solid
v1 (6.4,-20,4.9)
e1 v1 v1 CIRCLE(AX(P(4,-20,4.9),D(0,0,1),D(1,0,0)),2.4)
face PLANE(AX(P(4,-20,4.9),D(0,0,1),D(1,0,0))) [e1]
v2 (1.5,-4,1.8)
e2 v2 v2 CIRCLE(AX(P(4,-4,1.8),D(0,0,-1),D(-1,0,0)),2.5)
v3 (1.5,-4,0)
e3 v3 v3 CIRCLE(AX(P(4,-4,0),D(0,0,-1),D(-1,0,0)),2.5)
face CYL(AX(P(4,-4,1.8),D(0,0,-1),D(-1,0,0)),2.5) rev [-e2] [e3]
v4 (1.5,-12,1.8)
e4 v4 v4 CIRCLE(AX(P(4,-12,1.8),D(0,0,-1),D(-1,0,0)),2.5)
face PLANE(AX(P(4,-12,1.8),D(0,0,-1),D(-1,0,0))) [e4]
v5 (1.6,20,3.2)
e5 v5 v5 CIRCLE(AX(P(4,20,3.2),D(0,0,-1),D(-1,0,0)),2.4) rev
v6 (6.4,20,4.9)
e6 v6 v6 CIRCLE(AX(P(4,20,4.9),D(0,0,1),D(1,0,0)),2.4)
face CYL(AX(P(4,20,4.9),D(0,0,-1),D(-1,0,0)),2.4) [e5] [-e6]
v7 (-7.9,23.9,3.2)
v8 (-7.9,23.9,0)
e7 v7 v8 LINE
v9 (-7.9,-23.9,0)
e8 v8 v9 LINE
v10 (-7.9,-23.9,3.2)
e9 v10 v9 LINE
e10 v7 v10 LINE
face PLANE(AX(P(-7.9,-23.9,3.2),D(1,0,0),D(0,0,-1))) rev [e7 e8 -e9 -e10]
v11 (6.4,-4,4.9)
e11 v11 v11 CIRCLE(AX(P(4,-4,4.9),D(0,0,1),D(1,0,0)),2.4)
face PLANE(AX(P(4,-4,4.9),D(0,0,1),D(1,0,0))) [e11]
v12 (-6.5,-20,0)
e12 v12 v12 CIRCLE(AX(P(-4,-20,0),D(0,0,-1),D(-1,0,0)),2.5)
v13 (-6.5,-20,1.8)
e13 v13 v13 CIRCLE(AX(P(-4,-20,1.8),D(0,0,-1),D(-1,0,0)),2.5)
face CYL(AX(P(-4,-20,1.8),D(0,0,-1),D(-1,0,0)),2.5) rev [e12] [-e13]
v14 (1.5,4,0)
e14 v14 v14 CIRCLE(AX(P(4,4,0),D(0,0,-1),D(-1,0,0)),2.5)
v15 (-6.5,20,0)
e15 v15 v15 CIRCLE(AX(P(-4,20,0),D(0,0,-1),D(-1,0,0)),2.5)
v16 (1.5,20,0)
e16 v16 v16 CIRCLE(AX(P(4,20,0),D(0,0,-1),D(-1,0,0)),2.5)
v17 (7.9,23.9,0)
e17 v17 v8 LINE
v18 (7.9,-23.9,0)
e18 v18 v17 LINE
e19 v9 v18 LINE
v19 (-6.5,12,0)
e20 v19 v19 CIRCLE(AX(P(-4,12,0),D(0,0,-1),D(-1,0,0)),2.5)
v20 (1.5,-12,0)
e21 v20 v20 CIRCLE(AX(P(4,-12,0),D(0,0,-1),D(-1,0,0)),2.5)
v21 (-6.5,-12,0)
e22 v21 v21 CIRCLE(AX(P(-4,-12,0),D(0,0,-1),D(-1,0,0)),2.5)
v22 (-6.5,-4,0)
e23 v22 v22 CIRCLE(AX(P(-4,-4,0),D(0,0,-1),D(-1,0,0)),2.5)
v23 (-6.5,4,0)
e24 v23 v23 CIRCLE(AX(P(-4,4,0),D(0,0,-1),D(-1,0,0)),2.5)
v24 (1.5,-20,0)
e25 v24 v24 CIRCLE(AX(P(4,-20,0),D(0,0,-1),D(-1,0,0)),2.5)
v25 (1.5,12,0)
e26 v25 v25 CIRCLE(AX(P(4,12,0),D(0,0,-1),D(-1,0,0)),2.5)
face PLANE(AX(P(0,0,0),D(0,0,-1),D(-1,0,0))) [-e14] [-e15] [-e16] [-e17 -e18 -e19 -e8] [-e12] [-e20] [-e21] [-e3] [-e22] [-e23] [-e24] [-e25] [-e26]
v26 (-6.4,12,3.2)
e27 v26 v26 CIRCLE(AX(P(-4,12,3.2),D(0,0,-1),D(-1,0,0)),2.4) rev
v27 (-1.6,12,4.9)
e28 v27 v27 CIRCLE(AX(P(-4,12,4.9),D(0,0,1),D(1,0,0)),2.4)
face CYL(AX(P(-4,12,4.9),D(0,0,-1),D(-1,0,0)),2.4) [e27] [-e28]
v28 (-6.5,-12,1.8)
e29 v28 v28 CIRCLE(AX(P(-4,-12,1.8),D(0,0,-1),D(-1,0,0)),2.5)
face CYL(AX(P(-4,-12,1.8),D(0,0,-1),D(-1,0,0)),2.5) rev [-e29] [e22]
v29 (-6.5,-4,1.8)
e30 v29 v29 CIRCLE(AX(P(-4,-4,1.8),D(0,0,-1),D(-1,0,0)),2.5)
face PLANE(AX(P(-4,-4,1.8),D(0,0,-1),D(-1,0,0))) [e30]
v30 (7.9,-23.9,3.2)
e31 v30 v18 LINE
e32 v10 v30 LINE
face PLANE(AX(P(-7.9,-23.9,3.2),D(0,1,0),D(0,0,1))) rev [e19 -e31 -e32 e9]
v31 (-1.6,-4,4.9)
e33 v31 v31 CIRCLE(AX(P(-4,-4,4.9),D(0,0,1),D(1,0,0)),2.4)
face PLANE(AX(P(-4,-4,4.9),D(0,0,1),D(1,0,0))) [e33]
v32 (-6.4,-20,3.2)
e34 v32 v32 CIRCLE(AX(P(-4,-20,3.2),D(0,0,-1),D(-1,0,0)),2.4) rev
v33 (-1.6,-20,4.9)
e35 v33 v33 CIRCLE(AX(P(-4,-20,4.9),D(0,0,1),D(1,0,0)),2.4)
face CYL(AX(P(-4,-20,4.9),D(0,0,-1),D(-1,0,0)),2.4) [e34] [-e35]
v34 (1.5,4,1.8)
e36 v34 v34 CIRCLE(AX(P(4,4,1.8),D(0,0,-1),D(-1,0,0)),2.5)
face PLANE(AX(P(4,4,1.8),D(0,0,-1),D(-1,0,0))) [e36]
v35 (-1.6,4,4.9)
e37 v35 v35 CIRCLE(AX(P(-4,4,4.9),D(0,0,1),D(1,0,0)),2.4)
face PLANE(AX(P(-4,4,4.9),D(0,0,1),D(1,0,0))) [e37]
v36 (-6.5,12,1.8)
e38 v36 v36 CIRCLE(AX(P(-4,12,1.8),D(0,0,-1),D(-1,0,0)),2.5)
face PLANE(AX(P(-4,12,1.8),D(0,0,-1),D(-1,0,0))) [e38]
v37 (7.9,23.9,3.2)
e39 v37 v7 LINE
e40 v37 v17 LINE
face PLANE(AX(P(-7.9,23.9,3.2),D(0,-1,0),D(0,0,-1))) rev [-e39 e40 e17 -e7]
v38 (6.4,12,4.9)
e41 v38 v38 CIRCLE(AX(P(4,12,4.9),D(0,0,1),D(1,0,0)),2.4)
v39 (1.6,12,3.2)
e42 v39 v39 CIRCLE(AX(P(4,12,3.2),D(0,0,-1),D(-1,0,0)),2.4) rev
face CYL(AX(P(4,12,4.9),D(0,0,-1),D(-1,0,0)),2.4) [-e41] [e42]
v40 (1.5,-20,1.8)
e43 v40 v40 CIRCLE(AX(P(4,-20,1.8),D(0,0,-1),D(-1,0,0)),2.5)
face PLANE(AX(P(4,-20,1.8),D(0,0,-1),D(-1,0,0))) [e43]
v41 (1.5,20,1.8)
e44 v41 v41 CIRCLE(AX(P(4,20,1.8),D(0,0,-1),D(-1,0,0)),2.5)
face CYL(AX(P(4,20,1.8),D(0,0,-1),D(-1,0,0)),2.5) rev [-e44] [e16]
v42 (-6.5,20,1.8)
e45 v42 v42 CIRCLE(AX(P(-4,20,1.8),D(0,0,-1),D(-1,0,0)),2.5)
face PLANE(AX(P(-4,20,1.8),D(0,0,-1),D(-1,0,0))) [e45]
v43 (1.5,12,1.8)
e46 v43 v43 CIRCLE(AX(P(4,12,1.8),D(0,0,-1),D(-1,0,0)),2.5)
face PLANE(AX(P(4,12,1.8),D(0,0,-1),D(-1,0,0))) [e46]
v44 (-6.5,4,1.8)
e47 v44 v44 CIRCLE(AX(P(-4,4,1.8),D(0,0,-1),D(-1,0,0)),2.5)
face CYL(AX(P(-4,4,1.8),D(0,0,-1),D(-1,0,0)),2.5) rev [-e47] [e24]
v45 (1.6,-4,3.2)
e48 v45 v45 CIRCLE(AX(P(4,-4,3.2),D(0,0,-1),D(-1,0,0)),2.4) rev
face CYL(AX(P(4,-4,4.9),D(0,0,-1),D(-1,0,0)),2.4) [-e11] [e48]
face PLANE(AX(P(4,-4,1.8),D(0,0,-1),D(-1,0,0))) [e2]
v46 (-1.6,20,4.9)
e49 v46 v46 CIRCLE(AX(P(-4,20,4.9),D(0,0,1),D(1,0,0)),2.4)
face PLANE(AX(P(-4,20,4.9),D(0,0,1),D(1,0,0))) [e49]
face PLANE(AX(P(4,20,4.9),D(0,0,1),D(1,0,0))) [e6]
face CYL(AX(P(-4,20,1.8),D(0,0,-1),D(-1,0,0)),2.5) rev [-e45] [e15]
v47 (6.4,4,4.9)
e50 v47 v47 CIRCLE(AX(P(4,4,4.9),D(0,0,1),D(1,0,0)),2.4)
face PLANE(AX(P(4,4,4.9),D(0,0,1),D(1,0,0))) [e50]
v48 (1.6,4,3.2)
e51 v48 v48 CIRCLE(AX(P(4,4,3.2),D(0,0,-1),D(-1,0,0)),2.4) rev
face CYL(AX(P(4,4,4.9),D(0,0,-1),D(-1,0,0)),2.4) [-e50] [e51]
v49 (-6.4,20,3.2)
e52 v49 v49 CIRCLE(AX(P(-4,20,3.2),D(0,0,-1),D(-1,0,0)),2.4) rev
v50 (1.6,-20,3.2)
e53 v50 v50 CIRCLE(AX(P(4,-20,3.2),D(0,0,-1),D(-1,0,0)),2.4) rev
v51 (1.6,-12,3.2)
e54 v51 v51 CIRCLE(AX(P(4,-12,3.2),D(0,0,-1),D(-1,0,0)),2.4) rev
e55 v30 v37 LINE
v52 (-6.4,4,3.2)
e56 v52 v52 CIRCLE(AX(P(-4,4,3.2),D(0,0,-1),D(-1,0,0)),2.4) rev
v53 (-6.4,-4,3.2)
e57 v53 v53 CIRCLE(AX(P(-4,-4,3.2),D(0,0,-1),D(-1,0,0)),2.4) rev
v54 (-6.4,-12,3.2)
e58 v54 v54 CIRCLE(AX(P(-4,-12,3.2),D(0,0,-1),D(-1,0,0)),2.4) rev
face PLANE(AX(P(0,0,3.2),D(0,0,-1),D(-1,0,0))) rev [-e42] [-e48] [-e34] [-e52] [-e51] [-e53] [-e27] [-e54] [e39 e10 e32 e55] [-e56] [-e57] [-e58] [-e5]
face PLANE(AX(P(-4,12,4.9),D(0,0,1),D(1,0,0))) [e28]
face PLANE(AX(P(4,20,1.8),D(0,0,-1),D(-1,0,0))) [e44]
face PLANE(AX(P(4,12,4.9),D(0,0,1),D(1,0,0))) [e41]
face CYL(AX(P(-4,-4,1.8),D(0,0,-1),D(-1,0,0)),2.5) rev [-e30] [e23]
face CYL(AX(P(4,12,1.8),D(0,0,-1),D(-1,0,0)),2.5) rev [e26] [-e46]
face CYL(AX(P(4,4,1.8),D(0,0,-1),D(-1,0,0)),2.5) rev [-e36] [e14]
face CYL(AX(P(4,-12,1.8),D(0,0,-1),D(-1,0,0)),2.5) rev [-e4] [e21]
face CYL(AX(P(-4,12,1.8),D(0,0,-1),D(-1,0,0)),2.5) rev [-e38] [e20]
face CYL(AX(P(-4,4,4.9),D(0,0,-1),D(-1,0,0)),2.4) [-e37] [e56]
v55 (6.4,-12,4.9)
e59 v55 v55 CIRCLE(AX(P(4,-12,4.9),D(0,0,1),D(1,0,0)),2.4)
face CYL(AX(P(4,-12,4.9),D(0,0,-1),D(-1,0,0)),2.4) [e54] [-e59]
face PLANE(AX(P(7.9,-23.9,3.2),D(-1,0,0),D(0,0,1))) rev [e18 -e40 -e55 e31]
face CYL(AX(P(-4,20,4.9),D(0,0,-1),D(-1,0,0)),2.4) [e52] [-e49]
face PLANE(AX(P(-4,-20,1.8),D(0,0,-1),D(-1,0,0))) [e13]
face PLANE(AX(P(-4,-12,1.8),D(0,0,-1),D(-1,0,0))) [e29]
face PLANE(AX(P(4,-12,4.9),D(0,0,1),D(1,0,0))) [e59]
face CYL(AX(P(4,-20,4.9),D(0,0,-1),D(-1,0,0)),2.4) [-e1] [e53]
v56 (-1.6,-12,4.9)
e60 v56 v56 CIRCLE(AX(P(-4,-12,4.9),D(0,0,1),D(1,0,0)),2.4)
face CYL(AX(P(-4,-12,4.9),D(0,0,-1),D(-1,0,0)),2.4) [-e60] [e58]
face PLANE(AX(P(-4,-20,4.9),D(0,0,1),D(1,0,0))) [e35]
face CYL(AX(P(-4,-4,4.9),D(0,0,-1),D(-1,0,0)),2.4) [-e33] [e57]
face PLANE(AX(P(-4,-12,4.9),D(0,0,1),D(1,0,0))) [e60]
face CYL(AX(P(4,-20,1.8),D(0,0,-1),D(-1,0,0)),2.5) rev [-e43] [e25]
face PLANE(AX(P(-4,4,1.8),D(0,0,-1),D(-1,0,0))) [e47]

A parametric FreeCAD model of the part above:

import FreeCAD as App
import Part
import Sketcher


def add_polygon(sketch, points):
    """Adds a closed chain of lines whose ends are joined by coincident constraints."""
    first, n = sketch.GeometryCount, len(points)
    for a, b in zip(points, points[1:] + points[:1]):
        sketch.addGeometry(Part.LineSegment(App.Vector(*a, 0), App.Vector(*b, 0)), False)
    for i in range(n):
        sketch.addConstraint(Sketcher.Constraint("Coincident", first + i, 2, first + (i + 1) % n, 1))

doc = App.newDocument("Part")
params = doc.addObject("Spreadsheet::Sheet", "Params")
for row, (alias, value) in enumerate([
    ("sketch1_width", "15.8 mm"),
    ("sketch1_height", "47.8 mm"),
    ("pad1_length", "3.2 mm"),
    ("sketch2_diameter", "4.8 mm"),
    ("pad2_length", "1.7 mm"),
    ("sketch3_diameter", "5 mm"),
    ("pocket1_length", "1.8 mm"),
], start=1):
    params.set(f"A{row}", alias)
    params.set(f"B{row}", "=" + value)
    params.setAlias(f"B{row}", alias)

body = doc.addObject("PartDesign::Body", "Body")

# Sketch on XY plane
sketch1 = doc.addObject("Sketcher::SketchObject", "Sketch")
body.addObject(sketch1)
sketch1.AttachmentSupport = (doc.XY_Plane, [""])
sketch1.MapMode = "FlatFace"
add_polygon(sketch1, [(-7.9, 23.9), (-7.9, -23.9), (7.9, -23.9), (7.9, 23.9)])  # lines 0-3
sketch1.addConstraint([
    Sketcher.Constraint("Vertical", 0),
    Sketcher.Constraint("Horizontal", 1),
    Sketcher.Constraint("Vertical", 2),
    Sketcher.Constraint("Horizontal", 3),
    Sketcher.Constraint("Symmetric", 0, 2, 2, 2, -1, 1),
    Sketcher.Constraint("DistanceX", 1, 1, 1, 2, 15.8),
    Sketcher.Constraint("DistanceY", 0, 2, 0, 1, 47.8),
])
sketch1.setExpression("Constraints[9]", "Params.sketch1_width")
sketch1.setExpression("Constraints[10]", "Params.sketch1_height")
pad1 = doc.addObject("PartDesign::Pad", "Pad")
body.addObject(pad1)
pad1.Profile = sketch1
pad1.setExpression("Length", "Params.pad1_length")

# Sketch on XY plane
sketch2 = doc.addObject("Sketcher::SketchObject", "Sketch001")
body.addObject(sketch2)
sketch2.AttachmentSupport = (doc.XY_Plane, [""])
sketch2.MapMode = "FlatFace"
sketch2.AttachmentOffset = App.Placement(App.Vector(0, 0, 3.2), App.Rotation())
sketch2.addGeometry([
    Part.Circle(App.Vector(-4, 20, 0), App.Vector(0, 0, 1), 2.4),  # 0
    Part.Circle(App.Vector(4, 20, 0), App.Vector(0, 0, 1), 2.4),  # 1
    Part.Circle(App.Vector(4, 12, 0), App.Vector(0, 0, 1), 2.4),  # 2
    Part.Circle(App.Vector(4, 4, 0), App.Vector(0, 0, 1), 2.4),  # 3
    Part.Circle(App.Vector(4, -4, 0), App.Vector(0, 0, 1), 2.4),  # 4
    Part.Circle(App.Vector(4, -12, 0), App.Vector(0, 0, 1), 2.4),  # 5
    Part.Circle(App.Vector(4, -20, 0), App.Vector(0, 0, 1), 2.4),  # 6
    Part.Circle(App.Vector(-4, 12, 0), App.Vector(0, 0, 1), 2.4),  # 7
    Part.Circle(App.Vector(-4, 4, 0), App.Vector(0, 0, 1), 2.4),  # 8
    Part.Circle(App.Vector(-4, -4, 0), App.Vector(0, 0, 1), 2.4),  # 9
    Part.Circle(App.Vector(-4, -12, 0), App.Vector(0, 0, 1), 2.4),  # 10
    Part.Circle(App.Vector(-4, -20, 0), App.Vector(0, 0, 1), 2.4),  # 11
], False)
sketch2.addConstraint([
    Sketcher.Constraint("Equal", 0, 1),
    Sketcher.Constraint("Equal", 1, 2),
    Sketcher.Constraint("Equal", 2, 3),
    Sketcher.Constraint("Equal", 3, 4),
    Sketcher.Constraint("Equal", 4, 5),
    Sketcher.Constraint("Equal", 5, 6),
    Sketcher.Constraint("Equal", 6, 7),
    Sketcher.Constraint("Equal", 7, 8),
    Sketcher.Constraint("Equal", 8, 9),
    Sketcher.Constraint("Equal", 9, 10),
    Sketcher.Constraint("Equal", 10, 11),
    Sketcher.Constraint("Symmetric", 0, 3, 6, 3, -1, 1),
    Sketcher.Constraint("Symmetric", 5, 3, 7, 3, -1, 1),
    Sketcher.Constraint("Symmetric", 4, 3, 8, 3, -1, 1),
    Sketcher.Constraint("Symmetric", 3, 3, 9, 3, -1, 1),
    Sketcher.Constraint("Symmetric", 2, 3, 10, 3, -1, 1),
    Sketcher.Constraint("Symmetric", 1, 3, 11, 3, -1, 1),
    Sketcher.Constraint("Symmetric", 0, 3, 1, 3, -2),
    Sketcher.Constraint("Symmetric", 2, 3, 7, 3, -2),
    Sketcher.Constraint("Symmetric", 3, 3, 8, 3, -2),
    Sketcher.Constraint("Vertical", 1, 3, 2, 3),
    Sketcher.Constraint("Vertical", 2, 3, 3, 3),
    Sketcher.Constraint("Diameter", 0, 4.8),
    Sketcher.Constraint("DistanceX", 0, 3, -1, 1, 4.0),
    Sketcher.Constraint("DistanceY", -1, 1, 0, 3, 20.0),
    Sketcher.Constraint("DistanceY", -1, 1, 2, 3, 12.0),
    Sketcher.Constraint("DistanceY", -1, 1, 3, 3, 4.0),
])
sketch2.setExpression("Constraints[22]", "Params.sketch2_diameter")
pad2 = doc.addObject("PartDesign::Pad", "Pad001")
body.addObject(pad2)
pad2.Profile = sketch2
pad2.setExpression("Length", "Params.pad2_length")

# Sketch on XY plane
sketch3 = doc.addObject("Sketcher::SketchObject", "Sketch002")
body.addObject(sketch3)
sketch3.AttachmentSupport = (doc.XY_Plane, [""])
sketch3.MapMode = "FlatFace"
sketch3.addGeometry([
    Part.Circle(App.Vector(4, 20, 0), App.Vector(0, 0, 1), 2.5),  # 0
    Part.Circle(App.Vector(-4, 20, 0), App.Vector(0, 0, 1), 2.5),  # 1
    Part.Circle(App.Vector(-4, 12, 0), App.Vector(0, 0, 1), 2.5),  # 2
    Part.Circle(App.Vector(-4, 4, 0), App.Vector(0, 0, 1), 2.5),  # 3
    Part.Circle(App.Vector(-4, -4, 0), App.Vector(0, 0, 1), 2.5),  # 4
    Part.Circle(App.Vector(-4, -12, 0), App.Vector(0, 0, 1), 2.5),  # 5
    Part.Circle(App.Vector(-4, -20, 0), App.Vector(0, 0, 1), 2.5),  # 6
    Part.Circle(App.Vector(4, 12, 0), App.Vector(0, 0, 1), 2.5),  # 7
    Part.Circle(App.Vector(4, 4, 0), App.Vector(0, 0, 1), 2.5),  # 8
    Part.Circle(App.Vector(4, -4, 0), App.Vector(0, 0, 1), 2.5),  # 9
    Part.Circle(App.Vector(4, -12, 0), App.Vector(0, 0, 1), 2.5),  # 10
    Part.Circle(App.Vector(4, -20, 0), App.Vector(0, 0, 1), 2.5),  # 11
], False)
sketch3.addConstraint([
    Sketcher.Constraint("Equal", 0, 1),
    Sketcher.Constraint("Equal", 1, 2),
    Sketcher.Constraint("Equal", 2, 3),
    Sketcher.Constraint("Equal", 3, 4),
    Sketcher.Constraint("Equal", 4, 5),
    Sketcher.Constraint("Equal", 5, 6),
    Sketcher.Constraint("Equal", 6, 7),
    Sketcher.Constraint("Equal", 7, 8),
    Sketcher.Constraint("Equal", 8, 9),
    Sketcher.Constraint("Equal", 9, 10),
    Sketcher.Constraint("Equal", 10, 11),
    Sketcher.Constraint("Symmetric", 0, 3, 6, 3, -1, 1),
    Sketcher.Constraint("Symmetric", 5, 3, 7, 3, -1, 1),
    Sketcher.Constraint("Symmetric", 4, 3, 8, 3, -1, 1),
    Sketcher.Constraint("Symmetric", 3, 3, 9, 3, -1, 1),
    Sketcher.Constraint("Symmetric", 2, 3, 10, 3, -1, 1),
    Sketcher.Constraint("Symmetric", 1, 3, 11, 3, -1, 1),
    Sketcher.Constraint("Symmetric", 0, 3, 1, 3, -2),
    Sketcher.Constraint("Symmetric", 2, 3, 7, 3, -2),
    Sketcher.Constraint("Symmetric", 3, 3, 8, 3, -2),
    Sketcher.Constraint("Vertical", 1, 3, 2, 3),
    Sketcher.Constraint("Vertical", 2, 3, 3, 3),
    Sketcher.Constraint("Diameter", 0, 5.0),
    Sketcher.Constraint("DistanceX", -1, 1, 0, 3, 4.0),
    Sketcher.Constraint("DistanceY", -1, 1, 0, 3, 20.0),
    Sketcher.Constraint("DistanceY", -1, 1, 2, 3, 12.0),
    Sketcher.Constraint("DistanceY", -1, 1, 3, 3, 4.0),
])
sketch3.setExpression("Constraints[22]", "Params.sketch3_diameter")
pocket1 = doc.addObject("PartDesign::Pocket", "Pocket")
body.addObject(pocket1)
pocket1.Profile = sketch3
pocket1.setExpression("Length", "Params.pocket1_length")
pocket1.Reversed = True

doc.recompute()
